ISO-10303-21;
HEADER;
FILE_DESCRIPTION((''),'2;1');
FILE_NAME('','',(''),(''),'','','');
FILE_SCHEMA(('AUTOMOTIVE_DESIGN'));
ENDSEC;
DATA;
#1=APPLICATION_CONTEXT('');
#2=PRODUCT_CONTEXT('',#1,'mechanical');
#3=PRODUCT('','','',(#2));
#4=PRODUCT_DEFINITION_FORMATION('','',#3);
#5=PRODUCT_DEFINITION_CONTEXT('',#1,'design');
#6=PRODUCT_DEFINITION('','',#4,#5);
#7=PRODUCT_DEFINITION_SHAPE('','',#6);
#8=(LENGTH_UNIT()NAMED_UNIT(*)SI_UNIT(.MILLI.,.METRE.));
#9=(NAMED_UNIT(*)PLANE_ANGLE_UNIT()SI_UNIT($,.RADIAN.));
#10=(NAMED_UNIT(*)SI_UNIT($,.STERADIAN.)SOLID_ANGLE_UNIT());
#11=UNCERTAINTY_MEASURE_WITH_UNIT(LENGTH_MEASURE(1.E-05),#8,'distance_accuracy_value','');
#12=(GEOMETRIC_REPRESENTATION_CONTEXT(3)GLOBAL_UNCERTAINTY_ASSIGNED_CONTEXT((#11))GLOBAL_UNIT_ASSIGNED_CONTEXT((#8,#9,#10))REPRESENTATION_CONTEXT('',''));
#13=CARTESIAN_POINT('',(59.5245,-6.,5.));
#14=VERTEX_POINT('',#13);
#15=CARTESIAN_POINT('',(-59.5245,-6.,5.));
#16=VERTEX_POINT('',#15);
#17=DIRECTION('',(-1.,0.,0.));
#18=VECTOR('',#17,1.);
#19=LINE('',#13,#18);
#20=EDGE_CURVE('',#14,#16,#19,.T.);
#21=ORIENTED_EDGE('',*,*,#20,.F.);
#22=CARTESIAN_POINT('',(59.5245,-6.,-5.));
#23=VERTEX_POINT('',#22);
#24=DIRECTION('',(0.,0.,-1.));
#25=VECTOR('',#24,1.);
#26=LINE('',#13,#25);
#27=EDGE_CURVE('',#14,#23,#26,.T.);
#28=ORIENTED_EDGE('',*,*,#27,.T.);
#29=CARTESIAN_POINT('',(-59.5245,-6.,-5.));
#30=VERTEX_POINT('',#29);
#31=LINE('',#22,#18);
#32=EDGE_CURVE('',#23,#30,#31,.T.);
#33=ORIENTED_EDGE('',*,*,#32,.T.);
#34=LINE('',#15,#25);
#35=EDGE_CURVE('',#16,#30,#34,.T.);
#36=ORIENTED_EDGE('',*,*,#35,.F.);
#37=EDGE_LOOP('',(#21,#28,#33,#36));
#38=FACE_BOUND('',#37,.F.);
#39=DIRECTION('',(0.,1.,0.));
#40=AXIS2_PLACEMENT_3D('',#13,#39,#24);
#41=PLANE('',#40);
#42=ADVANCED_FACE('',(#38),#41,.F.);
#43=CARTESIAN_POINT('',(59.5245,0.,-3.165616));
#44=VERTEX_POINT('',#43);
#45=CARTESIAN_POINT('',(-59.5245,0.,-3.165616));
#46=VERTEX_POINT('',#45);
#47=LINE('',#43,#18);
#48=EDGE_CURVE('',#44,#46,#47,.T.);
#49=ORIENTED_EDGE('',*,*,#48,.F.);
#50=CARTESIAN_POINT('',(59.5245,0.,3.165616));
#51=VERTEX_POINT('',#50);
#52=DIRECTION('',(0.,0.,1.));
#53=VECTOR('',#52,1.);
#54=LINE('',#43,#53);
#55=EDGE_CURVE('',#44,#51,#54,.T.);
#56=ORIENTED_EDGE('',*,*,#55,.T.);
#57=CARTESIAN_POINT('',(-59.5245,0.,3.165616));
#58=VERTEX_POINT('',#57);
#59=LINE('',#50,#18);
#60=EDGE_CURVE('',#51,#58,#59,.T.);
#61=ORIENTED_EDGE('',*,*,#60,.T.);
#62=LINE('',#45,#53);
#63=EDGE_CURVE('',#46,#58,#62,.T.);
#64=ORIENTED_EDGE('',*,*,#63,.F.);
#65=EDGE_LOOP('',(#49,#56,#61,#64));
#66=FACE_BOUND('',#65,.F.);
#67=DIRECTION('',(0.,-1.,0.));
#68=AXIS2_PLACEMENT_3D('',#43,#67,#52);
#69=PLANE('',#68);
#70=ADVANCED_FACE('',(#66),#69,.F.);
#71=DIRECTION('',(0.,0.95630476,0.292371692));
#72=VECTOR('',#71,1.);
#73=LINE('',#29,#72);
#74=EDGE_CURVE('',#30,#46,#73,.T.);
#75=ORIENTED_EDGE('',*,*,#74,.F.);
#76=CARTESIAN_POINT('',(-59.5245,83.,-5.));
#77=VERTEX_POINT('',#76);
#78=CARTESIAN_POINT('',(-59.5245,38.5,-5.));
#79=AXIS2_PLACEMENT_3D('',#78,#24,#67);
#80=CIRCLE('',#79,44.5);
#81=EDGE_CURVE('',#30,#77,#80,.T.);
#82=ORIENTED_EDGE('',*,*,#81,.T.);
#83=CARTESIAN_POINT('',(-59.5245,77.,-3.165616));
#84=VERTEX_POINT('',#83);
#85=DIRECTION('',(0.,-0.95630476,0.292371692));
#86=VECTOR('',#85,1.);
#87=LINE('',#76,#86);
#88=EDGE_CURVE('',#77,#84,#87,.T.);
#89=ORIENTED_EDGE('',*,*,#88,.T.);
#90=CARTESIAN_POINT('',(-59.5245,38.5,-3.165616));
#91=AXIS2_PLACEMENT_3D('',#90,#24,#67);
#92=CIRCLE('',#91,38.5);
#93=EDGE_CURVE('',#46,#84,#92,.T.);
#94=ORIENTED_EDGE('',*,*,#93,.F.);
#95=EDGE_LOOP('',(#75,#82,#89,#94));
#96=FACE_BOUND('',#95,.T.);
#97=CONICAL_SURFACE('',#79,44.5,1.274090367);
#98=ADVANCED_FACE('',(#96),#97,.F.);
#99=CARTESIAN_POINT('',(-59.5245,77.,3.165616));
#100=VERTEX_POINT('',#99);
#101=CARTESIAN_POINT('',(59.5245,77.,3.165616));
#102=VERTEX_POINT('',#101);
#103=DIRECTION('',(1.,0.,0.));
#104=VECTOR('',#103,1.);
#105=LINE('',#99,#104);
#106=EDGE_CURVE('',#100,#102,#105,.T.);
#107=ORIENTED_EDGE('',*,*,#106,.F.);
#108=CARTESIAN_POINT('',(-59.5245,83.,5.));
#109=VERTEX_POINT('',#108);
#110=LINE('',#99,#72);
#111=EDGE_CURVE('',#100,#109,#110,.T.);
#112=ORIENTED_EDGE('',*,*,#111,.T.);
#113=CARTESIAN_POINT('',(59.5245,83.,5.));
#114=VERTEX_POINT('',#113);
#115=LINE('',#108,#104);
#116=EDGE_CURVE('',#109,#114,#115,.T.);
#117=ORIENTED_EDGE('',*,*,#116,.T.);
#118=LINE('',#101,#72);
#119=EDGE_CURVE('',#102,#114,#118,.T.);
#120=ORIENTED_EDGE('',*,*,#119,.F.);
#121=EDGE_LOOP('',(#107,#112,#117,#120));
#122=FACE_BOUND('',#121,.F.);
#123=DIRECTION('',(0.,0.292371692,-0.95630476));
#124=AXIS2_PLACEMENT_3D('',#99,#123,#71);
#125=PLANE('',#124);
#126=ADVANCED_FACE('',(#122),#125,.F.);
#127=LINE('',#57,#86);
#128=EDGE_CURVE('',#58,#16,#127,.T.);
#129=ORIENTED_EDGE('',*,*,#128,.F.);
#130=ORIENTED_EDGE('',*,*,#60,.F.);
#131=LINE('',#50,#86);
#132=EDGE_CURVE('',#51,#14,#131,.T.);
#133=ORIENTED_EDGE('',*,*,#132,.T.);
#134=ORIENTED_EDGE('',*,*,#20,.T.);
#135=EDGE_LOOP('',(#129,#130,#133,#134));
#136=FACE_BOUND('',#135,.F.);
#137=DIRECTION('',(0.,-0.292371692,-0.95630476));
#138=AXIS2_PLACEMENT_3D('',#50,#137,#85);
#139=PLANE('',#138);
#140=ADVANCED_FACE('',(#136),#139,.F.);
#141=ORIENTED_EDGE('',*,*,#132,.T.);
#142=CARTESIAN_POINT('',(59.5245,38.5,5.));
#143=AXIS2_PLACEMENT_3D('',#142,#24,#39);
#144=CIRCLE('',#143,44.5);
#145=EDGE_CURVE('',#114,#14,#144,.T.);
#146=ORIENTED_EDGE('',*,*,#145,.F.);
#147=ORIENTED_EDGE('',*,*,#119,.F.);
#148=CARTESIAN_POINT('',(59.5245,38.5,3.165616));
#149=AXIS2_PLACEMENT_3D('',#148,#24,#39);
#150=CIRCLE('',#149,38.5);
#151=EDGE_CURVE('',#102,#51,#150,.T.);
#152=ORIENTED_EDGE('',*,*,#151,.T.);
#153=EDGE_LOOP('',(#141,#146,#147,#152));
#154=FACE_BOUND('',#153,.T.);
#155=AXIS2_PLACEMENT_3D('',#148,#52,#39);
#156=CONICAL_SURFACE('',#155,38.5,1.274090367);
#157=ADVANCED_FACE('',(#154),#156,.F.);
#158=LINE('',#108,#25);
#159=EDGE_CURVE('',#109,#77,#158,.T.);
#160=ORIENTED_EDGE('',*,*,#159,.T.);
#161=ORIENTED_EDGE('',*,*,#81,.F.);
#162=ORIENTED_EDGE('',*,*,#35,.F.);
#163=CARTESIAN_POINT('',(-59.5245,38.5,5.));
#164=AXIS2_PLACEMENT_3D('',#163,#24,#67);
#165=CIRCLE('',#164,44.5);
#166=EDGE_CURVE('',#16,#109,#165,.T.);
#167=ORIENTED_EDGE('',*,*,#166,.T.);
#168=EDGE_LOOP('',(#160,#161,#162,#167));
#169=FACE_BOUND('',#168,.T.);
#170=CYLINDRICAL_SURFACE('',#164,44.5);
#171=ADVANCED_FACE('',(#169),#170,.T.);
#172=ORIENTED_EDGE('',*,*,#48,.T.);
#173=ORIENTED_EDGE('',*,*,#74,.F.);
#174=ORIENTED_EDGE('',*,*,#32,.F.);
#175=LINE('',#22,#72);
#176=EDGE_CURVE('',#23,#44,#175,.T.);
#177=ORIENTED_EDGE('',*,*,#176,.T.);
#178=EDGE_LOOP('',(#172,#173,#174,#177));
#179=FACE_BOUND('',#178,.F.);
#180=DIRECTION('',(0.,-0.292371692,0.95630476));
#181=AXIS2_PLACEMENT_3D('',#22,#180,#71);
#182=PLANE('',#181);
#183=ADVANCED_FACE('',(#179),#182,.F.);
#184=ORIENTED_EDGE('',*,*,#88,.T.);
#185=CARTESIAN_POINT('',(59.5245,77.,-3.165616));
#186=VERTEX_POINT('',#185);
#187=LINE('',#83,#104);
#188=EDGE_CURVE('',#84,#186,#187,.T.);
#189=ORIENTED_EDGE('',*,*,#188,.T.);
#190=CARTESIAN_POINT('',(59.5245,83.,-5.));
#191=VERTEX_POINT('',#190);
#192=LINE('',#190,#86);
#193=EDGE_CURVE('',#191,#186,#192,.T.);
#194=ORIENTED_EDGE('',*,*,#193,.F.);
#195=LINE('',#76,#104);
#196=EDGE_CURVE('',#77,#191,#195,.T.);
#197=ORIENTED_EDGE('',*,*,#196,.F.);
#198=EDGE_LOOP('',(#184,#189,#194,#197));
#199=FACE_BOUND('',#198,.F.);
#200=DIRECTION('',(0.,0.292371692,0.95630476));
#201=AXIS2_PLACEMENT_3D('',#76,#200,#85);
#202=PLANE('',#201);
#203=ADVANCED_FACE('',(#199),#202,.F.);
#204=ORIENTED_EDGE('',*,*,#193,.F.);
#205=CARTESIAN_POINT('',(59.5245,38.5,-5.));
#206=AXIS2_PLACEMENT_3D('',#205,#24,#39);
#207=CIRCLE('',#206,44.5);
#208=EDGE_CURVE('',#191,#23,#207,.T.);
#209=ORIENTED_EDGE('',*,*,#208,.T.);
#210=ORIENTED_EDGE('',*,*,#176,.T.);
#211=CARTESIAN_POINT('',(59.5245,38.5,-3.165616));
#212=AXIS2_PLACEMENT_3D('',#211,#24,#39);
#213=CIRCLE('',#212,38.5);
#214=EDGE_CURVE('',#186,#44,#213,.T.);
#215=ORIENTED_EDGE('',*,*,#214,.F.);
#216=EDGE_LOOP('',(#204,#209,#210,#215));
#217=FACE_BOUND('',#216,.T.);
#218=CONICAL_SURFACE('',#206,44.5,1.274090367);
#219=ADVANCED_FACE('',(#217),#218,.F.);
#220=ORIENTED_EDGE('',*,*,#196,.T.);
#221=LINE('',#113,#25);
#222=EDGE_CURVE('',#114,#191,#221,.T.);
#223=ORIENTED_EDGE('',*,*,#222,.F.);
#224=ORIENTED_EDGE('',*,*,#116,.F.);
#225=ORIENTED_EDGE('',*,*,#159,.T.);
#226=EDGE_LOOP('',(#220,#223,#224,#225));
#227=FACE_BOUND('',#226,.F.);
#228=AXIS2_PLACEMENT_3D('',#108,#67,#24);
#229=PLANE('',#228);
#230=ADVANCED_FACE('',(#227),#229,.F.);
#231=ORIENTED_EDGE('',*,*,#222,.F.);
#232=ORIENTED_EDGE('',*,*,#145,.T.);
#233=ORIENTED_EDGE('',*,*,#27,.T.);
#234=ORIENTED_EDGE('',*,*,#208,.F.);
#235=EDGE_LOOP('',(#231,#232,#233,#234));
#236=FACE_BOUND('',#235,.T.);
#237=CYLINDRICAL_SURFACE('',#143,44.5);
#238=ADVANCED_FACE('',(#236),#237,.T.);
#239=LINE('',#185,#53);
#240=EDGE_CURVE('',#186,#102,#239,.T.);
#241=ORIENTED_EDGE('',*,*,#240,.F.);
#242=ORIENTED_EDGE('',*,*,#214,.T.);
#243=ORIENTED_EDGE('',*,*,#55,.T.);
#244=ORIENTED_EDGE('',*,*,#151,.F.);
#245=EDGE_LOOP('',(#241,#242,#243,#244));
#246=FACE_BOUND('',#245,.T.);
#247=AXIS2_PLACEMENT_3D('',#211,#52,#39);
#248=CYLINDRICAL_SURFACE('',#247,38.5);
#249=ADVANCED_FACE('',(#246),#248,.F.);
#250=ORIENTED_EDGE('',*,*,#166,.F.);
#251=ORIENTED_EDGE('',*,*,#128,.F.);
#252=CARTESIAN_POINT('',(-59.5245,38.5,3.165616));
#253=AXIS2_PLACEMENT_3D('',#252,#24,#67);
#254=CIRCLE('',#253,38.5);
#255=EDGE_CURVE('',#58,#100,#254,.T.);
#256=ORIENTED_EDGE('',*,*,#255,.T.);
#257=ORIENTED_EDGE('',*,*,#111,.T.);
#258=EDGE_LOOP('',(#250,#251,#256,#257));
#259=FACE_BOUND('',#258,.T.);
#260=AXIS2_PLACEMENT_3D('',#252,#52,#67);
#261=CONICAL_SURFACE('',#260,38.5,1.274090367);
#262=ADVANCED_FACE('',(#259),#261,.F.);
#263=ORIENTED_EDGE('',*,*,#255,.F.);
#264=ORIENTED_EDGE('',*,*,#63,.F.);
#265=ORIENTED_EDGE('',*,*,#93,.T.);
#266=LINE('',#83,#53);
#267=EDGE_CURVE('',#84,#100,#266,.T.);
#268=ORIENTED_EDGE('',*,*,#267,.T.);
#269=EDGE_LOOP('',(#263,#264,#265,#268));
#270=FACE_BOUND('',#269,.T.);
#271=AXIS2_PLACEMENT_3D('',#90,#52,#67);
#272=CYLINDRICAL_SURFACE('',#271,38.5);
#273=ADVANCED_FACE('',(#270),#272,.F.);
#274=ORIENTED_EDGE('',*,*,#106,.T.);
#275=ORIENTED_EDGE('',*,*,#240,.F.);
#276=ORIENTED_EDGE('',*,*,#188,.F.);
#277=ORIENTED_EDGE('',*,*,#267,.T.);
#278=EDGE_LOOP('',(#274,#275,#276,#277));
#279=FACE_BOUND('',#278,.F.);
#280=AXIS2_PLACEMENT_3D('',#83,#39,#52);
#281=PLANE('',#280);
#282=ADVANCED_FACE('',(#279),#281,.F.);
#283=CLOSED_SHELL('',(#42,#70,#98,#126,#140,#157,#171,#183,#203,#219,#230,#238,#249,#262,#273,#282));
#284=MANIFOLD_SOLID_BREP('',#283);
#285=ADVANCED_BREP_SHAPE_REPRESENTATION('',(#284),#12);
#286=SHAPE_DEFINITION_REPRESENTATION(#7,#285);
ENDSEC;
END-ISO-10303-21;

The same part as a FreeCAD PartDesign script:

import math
import FreeCAD as App
import Part
import Sketcher

V = App.Vector
Q = App.Units.Quantity

doc = App.newDocument("Part")
body = doc.addObject("PartDesign::Body", "Body")

sketch1 = body.newObject("Sketcher::SketchObject", "Sketch")
sketch1.AttachmentSupport = (doc.getObject("YZ_Plane"), [""])
sketch1.MapMode = "FlatFace"
sketch1.addGeometry([
    Part.LineSegment(V(0, -3.165616, 0), V(0, 3.165616, 0)),
    Part.LineSegment(V(0, 3.165616, 0), V(-6, 5, 0)),
    Part.LineSegment(V(-6, 5, 0), V(-6, -5, 0)),
    Part.LineSegment(V(-6, -5, 0), V(0, -3.165616, 0)),
], False)
sketch1.addConstraint([
    Sketcher.Constraint("Coincident", 0, 2, 1, 1),
    Sketcher.Constraint("Coincident", 1, 2, 2, 1),
    Sketcher.Constraint("Coincident", 2, 2, 3, 1),
    Sketcher.Constraint("Coincident", 3, 2, 0, 1),
    Sketcher.Constraint("Vertical", 0),
    Sketcher.Constraint("Vertical", 2),
    Sketcher.Constraint("Symmetric", 0, 2, 3, 2, -1, 1),
    Sketcher.Constraint("Equal", 1, 3),
    Sketcher.Constraint("DistanceY", 2, 2, 2, 1, 10.0),
    Sketcher.Constraint("Angle", 1, Q("163.000001 deg")),
    Sketcher.Constraint("DistanceX", 1, 2, -1, 1, 6.0),
])

sketch2 = body.newObject("Sketcher::SketchObject", "Sketch001")
sketch2.AttachmentSupport = (doc.getObject("XY_Plane"), [""])
sketch2.MapMode = "FlatFace"
sketch2.addGeometry([
    Part.ArcOfCircle(Part.Circle(V(-59.5245, 38.5, 0), V(0, 0, 1), 38.5), math.radians(90), math.radians(270)),
    Part.LineSegment(V(-59.5245, 77, 0), V(59.5245, 77, 0)),
    Part.ArcOfCircle(Part.Circle(V(59.5245, 38.5, 0), V(0, 0, 1), 38.5), math.radians(-90), math.radians(90)),
    Part.LineSegment(V(59.5245, 0, 0), V(-59.5245, 0, 0)),
], False)
sketch2.addConstraint([
    Sketcher.Constraint("Tangent", 0, 1, 1, 1),
    Sketcher.Constraint("Tangent", 1, 2, 2, 2),
    Sketcher.Constraint("Tangent", 2, 1, 3, 1),
    Sketcher.Constraint("Tangent", 3, 2, 0, 2),
    Sketcher.Constraint("Horizontal", 1),
    Sketcher.Constraint("Horizontal", 3),
    Sketcher.Constraint("Symmetric", 2, 1, 3, 2, -1, 1),
    Sketcher.Constraint("Radius", 0, 38.5),
    Sketcher.Constraint("DistanceX", 1, 1, 1, 2, 119.049),
])
doc.recompute()

additivepipe = body.newObject("PartDesign::AdditivePipe", "AdditivePipe")
additivepipe.Profile = sketch1
additivepipe.Spine = (sketch2, ["Edge1", "Edge2", "Edge3", "Edge4"])

doc.recompute()
